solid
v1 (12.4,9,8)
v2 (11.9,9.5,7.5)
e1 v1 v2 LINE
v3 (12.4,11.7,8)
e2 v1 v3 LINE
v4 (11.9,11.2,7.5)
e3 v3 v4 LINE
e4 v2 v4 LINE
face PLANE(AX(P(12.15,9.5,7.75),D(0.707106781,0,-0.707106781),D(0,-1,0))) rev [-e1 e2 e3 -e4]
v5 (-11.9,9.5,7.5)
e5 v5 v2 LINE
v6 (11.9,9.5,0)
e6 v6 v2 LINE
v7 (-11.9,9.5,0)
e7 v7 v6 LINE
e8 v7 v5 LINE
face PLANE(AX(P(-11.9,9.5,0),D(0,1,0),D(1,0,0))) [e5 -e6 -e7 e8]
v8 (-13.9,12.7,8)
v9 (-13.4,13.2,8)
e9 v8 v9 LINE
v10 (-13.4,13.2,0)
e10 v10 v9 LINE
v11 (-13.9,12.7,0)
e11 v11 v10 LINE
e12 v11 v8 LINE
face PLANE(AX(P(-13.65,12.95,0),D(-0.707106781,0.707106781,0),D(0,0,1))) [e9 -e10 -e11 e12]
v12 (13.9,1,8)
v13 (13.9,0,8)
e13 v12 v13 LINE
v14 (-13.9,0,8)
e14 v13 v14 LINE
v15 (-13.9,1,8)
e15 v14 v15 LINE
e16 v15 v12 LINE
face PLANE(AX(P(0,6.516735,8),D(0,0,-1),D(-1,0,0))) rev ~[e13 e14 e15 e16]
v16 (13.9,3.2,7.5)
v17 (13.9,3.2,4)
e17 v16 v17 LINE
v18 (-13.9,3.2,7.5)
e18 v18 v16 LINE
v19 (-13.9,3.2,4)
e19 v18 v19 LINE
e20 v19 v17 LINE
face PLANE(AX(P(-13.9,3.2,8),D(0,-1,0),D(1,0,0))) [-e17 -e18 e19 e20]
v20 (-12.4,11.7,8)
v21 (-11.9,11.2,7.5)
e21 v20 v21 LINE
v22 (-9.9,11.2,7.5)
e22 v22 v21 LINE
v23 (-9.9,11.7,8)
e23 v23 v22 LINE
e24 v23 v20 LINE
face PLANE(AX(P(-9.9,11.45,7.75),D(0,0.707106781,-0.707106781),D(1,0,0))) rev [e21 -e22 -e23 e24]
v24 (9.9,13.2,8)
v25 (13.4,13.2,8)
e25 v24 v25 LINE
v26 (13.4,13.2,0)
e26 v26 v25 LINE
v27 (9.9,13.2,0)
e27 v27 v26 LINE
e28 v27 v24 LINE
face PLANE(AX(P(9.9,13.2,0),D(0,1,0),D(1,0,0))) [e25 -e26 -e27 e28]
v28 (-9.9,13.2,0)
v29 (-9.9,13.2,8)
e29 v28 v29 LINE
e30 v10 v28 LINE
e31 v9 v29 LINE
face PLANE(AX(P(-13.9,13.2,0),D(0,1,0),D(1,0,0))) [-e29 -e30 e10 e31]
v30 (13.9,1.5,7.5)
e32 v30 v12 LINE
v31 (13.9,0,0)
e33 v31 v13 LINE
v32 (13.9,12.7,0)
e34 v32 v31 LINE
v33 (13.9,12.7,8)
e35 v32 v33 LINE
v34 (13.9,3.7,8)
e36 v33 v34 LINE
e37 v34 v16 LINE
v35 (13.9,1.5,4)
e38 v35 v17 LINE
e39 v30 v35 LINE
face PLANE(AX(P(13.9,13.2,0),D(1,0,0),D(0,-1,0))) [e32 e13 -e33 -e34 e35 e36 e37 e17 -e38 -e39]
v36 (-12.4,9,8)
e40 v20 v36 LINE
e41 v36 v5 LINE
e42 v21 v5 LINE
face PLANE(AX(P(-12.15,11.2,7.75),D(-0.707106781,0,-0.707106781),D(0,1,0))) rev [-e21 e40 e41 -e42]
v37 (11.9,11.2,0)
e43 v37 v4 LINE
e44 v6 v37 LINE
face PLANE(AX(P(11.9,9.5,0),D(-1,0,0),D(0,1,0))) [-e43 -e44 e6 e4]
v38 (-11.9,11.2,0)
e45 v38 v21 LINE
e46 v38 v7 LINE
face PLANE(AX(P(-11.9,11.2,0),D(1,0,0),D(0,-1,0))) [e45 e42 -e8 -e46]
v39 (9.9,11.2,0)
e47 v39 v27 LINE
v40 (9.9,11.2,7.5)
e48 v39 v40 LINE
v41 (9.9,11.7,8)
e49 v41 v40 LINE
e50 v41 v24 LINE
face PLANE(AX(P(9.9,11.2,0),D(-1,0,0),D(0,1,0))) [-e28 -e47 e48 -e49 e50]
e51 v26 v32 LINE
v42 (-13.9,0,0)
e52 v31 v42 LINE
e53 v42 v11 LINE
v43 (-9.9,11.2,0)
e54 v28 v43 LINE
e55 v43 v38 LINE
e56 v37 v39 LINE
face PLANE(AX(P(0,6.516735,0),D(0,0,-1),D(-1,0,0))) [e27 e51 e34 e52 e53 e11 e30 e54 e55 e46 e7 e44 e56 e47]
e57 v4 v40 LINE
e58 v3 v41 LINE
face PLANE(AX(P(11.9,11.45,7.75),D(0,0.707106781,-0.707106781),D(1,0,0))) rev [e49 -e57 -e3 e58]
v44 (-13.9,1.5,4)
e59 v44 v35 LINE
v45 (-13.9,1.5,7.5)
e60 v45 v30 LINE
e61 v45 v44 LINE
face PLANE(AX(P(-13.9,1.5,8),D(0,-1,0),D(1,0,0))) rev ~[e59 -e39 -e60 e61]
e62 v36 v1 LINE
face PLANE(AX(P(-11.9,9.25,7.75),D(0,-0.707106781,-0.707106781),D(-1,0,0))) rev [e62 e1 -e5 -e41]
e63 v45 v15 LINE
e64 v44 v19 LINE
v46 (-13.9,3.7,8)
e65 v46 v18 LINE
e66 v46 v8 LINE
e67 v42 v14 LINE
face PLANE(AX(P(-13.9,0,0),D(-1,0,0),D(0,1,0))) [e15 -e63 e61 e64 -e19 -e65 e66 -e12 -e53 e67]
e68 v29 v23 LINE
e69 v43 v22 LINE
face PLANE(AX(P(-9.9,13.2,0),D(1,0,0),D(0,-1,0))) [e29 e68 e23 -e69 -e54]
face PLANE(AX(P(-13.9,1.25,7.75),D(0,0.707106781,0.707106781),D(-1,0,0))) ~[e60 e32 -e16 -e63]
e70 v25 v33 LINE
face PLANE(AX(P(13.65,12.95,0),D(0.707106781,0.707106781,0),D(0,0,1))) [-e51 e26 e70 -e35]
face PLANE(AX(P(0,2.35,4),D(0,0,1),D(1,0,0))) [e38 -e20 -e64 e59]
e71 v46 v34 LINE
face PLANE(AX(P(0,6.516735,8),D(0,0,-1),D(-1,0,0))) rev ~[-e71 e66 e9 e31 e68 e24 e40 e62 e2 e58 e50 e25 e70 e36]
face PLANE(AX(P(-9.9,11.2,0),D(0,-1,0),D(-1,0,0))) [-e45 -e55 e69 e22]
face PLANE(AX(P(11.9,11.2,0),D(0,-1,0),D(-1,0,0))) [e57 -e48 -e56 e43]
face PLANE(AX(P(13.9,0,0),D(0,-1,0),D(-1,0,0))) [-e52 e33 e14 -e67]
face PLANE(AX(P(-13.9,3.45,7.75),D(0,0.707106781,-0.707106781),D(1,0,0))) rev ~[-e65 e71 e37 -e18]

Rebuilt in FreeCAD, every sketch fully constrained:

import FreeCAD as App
import Part
import Sketcher
from FreeCAD import Vector


def edges_at(feature, points):
    """Names of the edges that pass closest to the given points."""
    edges = feature.Shape.Edges
    near = lambda p: min(range(len(edges)), key=lambda i: edges[i].distToShape(Part.Vertex(*p))[0])
    return sorted({f"Edge{near(p) + 1}" for p in points})

doc = App.newDocument("Part")
body = doc.addObject("PartDesign::Body", "Body")

# Sketch on XY plane
sketch1 = body.newObject("Sketcher::SketchObject", "Sketch")
sketch1.AttachmentSupport = (doc.getObject("XY_Plane"), [""])
sketch1.MapMode = "FlatFace"
sketch1.addGeometry(Part.LineSegment(Vector(-13.9, 13.2, 0), Vector(-13.9, 0, 0)), False)
sketch1.addGeometry(Part.LineSegment(Vector(-13.9, 0, 0), Vector(13.9, 0, 0)), False)
sketch1.addGeometry(Part.LineSegment(Vector(13.9, 0, 0), Vector(13.9, 13.2, 0)), False)
sketch1.addGeometry(Part.LineSegment(Vector(13.9, 13.2, 0), Vector(9.9, 13.2, 0)), False)
sketch1.addGeometry(Part.LineSegment(Vector(9.9, 13.2, 0), Vector(9.9, 11.2, 0)), False)
sketch1.addGeometry(Part.LineSegment(Vector(9.9, 11.2, 0), Vector(11.9, 11.2, 0)), False)
sketch1.addGeometry(Part.LineSegment(Vector(11.9, 11.2, 0), Vector(11.9, 9.5, 0)), False)
sketch1.addGeometry(Part.LineSegment(Vector(11.9, 9.5, 0), Vector(-11.9, 9.5, 0)), False)
sketch1.addGeometry(Part.LineSegment(Vector(-11.9, 9.5, 0), Vector(-11.9, 11.2, 0)), False)
sketch1.addGeometry(Part.LineSegment(Vector(-11.9, 11.2, 0), Vector(-9.9, 11.2, 0)), False)
sketch1.addGeometry(Part.LineSegment(Vector(-9.9, 11.2, 0), Vector(-9.9, 13.2, 0)), False)
sketch1.addGeometry(Part.LineSegment(Vector(-9.9, 13.2, 0), Vector(-13.9, 13.2, 0)), False)
sketch1.addConstraint(Sketcher.Constraint("Coincident", 0, 2, 1, 1))
sketch1.addConstraint(Sketcher.Constraint("Coincident", 1, 2, 2, 1))
sketch1.addConstraint(Sketcher.Constraint("Coincident", 2, 2, 3, 1))
sketch1.addConstraint(Sketcher.Constraint("Coincident", 3, 2, 4, 1))
sketch1.addConstraint(Sketcher.Constraint("Coincident", 4, 2, 5, 1))
sketch1.addConstraint(Sketcher.Constraint("Coincident", 5, 2, 6, 1))
sketch1.addConstraint(Sketcher.Constraint("Coincident", 6, 2, 7, 1))
sketch1.addConstraint(Sketcher.Constraint("Coincident", 7, 2, 8, 1))
sketch1.addConstraint(Sketcher.Constraint("Coincident", 8, 2, 9, 1))
sketch1.addConstraint(Sketcher.Constraint("Coincident", 9, 2, 10, 1))
sketch1.addConstraint(Sketcher.Constraint("Coincident", 10, 2, 11, 1))
sketch1.addConstraint(Sketcher.Constraint("Coincident", 11, 2, 0, 1))
sketch1.addConstraint(Sketcher.Constraint("Vertical", 0))
sketch1.addConstraint(Sketcher.Constraint("Horizontal", 1))
sketch1.addConstraint(Sketcher.Constraint("Vertical", 2))
sketch1.addConstraint(Sketcher.Constraint("Horizontal", 3))
sketch1.addConstraint(Sketcher.Constraint("Vertical", 4))
sketch1.addConstraint(Sketcher.Constraint("Horizontal", 5))
sketch1.addConstraint(Sketcher.Constraint("Vertical", 6))
sketch1.addConstraint(Sketcher.Constraint("Horizontal", 7))
sketch1.addConstraint(Sketcher.Constraint("Vertical", 8))
sketch1.addConstraint(Sketcher.Constraint("Horizontal", 9))
sketch1.addConstraint(Sketcher.Constraint("Vertical", 10))
sketch1.addConstraint(Sketcher.Constraint("Horizontal", 11))
sketch1.addConstraint(Sketcher.Constraint("Symmetric", 0, 2, 1, 2, -1, 1))
sketch1.addConstraint(Sketcher.Constraint("Symmetric", 5, 2, 8, 2, -2))
sketch1.addConstraint(Sketcher.Constraint("Symmetric", 3, 2, 10, 2, -2))
sketch1.addConstraint(Sketcher.Constraint("Equal", 9, 4))
sketch1.addConstraint(Sketcher.Constraint("DistanceX", 3, 2, 3, 1, 4.0))
sketch1.addConstraint(Sketcher.Constraint("DistanceX", 5, 1, 5, 2, 2.0))
sketch1.addConstraint(Sketcher.Constraint("DistanceX", 1, 1, 1, 2, 27.8))
sketch1.addConstraint(Sketcher.Constraint("DistanceY", 0, 2, 0, 1, 13.2))
sketch1.addConstraint(Sketcher.Constraint("DistanceY", 6, 2, 6, 1, 1.7))
pad1 = body.newObject("PartDesign::Pad", "Pad")
pad1.Profile = sketch1
pad1.Length = 8

# Sketch on XY plane
sketch2 = body.newObject("Sketcher::SketchObject", "Sketch001")
sketch2.AttachmentSupport = (doc.getObject("XY_Plane"), [""])
sketch2.MapMode = "FlatFace"
sketch2.AttachmentOffset = App.Placement(Vector(0, 0, 8), App.Rotation())
sketch2.addGeometry(Part.LineSegment(Vector(-13.9, 3.2, 0), Vector(-13.9, 1.5, 0)), False)
sketch2.addGeometry(Part.LineSegment(Vector(-13.9, 1.5, 0), Vector(13.9, 1.5, 0)), False)
sketch2.addGeometry(Part.LineSegment(Vector(13.9, 1.5, 0), Vector(13.9, 3.2, 0)), False)
sketch2.addGeometry(Part.LineSegment(Vector(13.9, 3.2, 0), Vector(-13.9, 3.2, 0)), False)
sketch2.addConstraint(Sketcher.Constraint("Coincident", 0, 2, 1, 1))
sketch2.addConstraint(Sketcher.Constraint("Coincident", 1, 2, 2, 1))
sketch2.addConstraint(Sketcher.Constraint("Coincident", 2, 2, 3, 1))
sketch2.addConstraint(Sketcher.Constraint("Coincident", 3, 2, 0, 1))
sketch2.addConstraint(Sketcher.Constraint("Vertical", 0))
sketch2.addConstraint(Sketcher.Constraint("Horizontal", 1))
sketch2.addConstraint(Sketcher.Constraint("Vertical", 2))
sketch2.addConstraint(Sketcher.Constraint("Horizontal", 3))
sketch2.addConstraint(Sketcher.Constraint("DistanceX", 1, 1, 1, 2, 27.8))
sketch2.addConstraint(Sketcher.Constraint("DistanceY", 0, 2, 0, 1, 1.7))
sketch2.addConstraint(Sketcher.Constraint("DistanceX", 0, 2, -1, 1, 13.9))
sketch2.addConstraint(Sketcher.Constraint("DistanceY", -1, 1, 0, 2, 1.5))
pocket1 = body.newObject("PartDesign::Pocket", "Pocket")
pocket1.Profile = sketch2
pocket1.Length = 4
doc.recompute()

chamfer = body.newObject("PartDesign::Chamfer", "Chamfer")
chamfer.Base = (pocket1, edges_at(pocket1, [
    (0, 1.5, 8),
    (0, 3.2, 8),
    (0, 9.5, 8),
    (-11.9, 10.35, 8),
    (-10.9, 11.2, 8),
    (11.9, 10.35, 8),
    (10.9, 11.2, 8),
    (-13.9, 13.2, 4),
    (13.9, 13.2, 4),
]))
chamfer.Size = 0.5

doc.recompute()
